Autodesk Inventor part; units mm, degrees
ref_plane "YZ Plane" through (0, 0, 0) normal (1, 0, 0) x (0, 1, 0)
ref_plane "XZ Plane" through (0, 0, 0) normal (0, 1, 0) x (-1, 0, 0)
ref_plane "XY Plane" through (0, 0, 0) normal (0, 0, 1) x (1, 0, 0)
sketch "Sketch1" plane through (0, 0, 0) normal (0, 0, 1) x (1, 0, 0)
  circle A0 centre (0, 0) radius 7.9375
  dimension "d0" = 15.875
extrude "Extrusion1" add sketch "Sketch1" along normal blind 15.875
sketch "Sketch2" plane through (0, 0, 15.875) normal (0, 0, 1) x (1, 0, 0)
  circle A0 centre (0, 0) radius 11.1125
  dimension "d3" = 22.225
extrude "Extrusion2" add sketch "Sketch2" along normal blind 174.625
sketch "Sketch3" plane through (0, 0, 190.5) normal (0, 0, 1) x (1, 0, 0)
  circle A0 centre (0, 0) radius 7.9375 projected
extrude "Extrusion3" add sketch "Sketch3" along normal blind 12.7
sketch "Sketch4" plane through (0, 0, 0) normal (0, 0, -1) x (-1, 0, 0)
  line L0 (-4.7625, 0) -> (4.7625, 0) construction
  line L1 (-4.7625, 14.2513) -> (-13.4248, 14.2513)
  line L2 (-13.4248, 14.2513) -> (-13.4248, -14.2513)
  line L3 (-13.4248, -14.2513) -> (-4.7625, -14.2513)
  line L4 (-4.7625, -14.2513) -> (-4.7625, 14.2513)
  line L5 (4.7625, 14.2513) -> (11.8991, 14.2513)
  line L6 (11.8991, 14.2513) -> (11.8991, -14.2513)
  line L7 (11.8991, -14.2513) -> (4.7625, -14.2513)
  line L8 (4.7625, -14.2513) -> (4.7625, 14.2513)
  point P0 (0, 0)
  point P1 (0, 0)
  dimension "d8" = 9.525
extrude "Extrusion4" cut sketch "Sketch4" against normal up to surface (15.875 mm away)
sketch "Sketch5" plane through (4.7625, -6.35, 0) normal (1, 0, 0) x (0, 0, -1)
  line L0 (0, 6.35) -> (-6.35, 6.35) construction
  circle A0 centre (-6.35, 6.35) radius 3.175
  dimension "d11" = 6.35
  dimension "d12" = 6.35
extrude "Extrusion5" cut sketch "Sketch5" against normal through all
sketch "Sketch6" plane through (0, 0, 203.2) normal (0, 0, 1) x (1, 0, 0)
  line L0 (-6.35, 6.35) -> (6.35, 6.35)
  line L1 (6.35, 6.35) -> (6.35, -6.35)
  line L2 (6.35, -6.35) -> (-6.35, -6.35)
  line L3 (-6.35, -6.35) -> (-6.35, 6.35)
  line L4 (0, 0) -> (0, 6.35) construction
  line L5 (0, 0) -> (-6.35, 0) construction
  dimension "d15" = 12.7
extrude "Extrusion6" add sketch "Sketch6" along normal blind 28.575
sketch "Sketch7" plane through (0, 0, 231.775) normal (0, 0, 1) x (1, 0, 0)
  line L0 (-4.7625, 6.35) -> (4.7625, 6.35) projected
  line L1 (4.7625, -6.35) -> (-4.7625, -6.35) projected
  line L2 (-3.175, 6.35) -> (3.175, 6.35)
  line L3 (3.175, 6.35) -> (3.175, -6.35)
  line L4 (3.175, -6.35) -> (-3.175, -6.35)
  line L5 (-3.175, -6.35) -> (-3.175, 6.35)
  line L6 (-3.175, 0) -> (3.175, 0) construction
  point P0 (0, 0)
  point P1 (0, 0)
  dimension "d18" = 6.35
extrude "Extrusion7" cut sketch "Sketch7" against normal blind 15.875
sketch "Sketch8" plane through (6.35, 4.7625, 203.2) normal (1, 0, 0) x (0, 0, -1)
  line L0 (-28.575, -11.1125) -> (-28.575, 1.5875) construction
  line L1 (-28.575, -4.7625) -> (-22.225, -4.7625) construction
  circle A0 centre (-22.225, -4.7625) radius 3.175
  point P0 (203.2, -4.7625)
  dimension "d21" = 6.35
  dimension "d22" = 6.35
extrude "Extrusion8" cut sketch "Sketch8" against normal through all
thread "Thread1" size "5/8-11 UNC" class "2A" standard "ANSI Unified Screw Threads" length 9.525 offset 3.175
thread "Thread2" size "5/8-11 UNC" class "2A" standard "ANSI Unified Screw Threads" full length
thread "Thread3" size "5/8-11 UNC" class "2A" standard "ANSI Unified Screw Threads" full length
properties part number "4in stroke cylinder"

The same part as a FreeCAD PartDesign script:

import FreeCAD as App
import Part
import Sketcher
from FreeCAD import Vector
Q = App.Units.Quantity

doc = App.newDocument("Part")
body = doc.addObject("PartDesign::Body", "Body")

# Sketch on XY plane
sketch1 = body.newObject("Sketcher::SketchObject", "Sketch")
sketch1.AttachmentSupport = (doc.getObject("XY_Plane"), [""])
sketch1.MapMode = "FlatFace"
sketch1.addGeometry(Part.Circle(Vector(0, 0, 0), Vector(0, 0, 1), 8), False)
sketch1.addConstraint([
    Sketcher.Constraint("Coincident", 0, 3, -1, 1),
    Sketcher.Constraint("Diameter", 0, Q("0.625 in")),
])
pad1 = body.newObject("PartDesign::Pad", "Pad")
pad1.Profile = sketch1
pad1.Length = Q("0.625 in")

# Sketch on XY plane
sketch2 = body.newObject("Sketcher::SketchObject", "Sketch001")
sketch2.AttachmentSupport = (doc.getObject("XY_Plane"), [""])
sketch2.MapMode = "FlatFace"
sketch2.AttachmentOffset = App.Placement(Vector(0, 0, 0.625 * 25.4), App.Rotation())
sketch2.addGeometry(Part.Circle(Vector(0, 0, 0), Vector(0, 0, 1), 11), False)
sketch2.addConstraint([
    Sketcher.Constraint("Coincident", 0, 3, -1, 1),
    Sketcher.Constraint("Diameter", 0, Q("0.875 in")),
])
pad2 = body.newObject("PartDesign::Pad", "Pad001")
pad2.Profile = sketch2
pad2.Length = Q("6.875 in")

# Sketch on XY plane
sketch3 = body.newObject("Sketcher::SketchObject", "Sketch002")
sketch3.AttachmentSupport = (doc.getObject("XY_Plane"), [""])
sketch3.MapMode = "FlatFace"
sketch3.AttachmentOffset = App.Placement(Vector(0, 0, 7.5 * 25.4), App.Rotation())
sketch3.addGeometry(Part.Circle(Vector(0, 0, 0), Vector(0, 0, 1), 8), False)
sketch3.addConstraint([
    Sketcher.Constraint("Coincident", 0, 3, -1, 1),
    Sketcher.Constraint("Diameter", 0, Q("0.625 in")),
])
pad3 = body.newObject("PartDesign::Pad", "Pad002")
pad3.Profile = sketch3
pad3.Length = Q("0.5 in")

# Sketch on XY plane
sketch4 = body.newObject("Sketcher::SketchObject", "Sketch003")
sketch4.AttachmentSupport = (doc.getObject("XY_Plane"), [""])
sketch4.MapMode = "FlatFace"
sketch4.addGeometry([
    Part.LineSegment(Vector(5, -14, 0), Vector(5, 14, 0)),  # 0
    Part.LineSegment(Vector(5, 14, 0), Vector(13, 14, 0)),  # 1
    Part.LineSegment(Vector(13, 14, 0), Vector(13, -14, 0)),  # 2
    Part.LineSegment(Vector(13, -14, 0), Vector(5, -14, 0)),  # 3
    Part.LineSegment(Vector(-12, 14, 0), Vector(-5, 14, 0)),  # 4
    Part.LineSegment(Vector(-5, 14, 0), Vector(-5, -14, 0)),  # 5
    Part.LineSegment(Vector(-5, -14, 0), Vector(-12, -14, 0)),  # 6
    Part.LineSegment(Vector(-12, -14, 0), Vector(-12, 14, 0)),  # 7
], False)
sketch4.addConstraint([
    Sketcher.Constraint("Coincident", 0, 2, 1, 1),
    Sketcher.Constraint("Coincident", 1, 2, 2, 1),
    Sketcher.Constraint("Coincident", 2, 2, 3, 1),
    Sketcher.Constraint("Coincident", 3, 2, 0, 1),
    Sketcher.Constraint("Coincident", 4, 2, 5, 1),
    Sketcher.Constraint("Coincident", 5, 2, 6, 1),
    Sketcher.Constraint("Coincident", 6, 2, 7, 1),
    Sketcher.Constraint("Coincident", 7, 2, 4, 1),
    Sketcher.Constraint("Vertical", 0),
    Sketcher.Constraint("Horizontal", 1),
    Sketcher.Constraint("Vertical", 2),
    Sketcher.Constraint("Horizontal", 3),
    Sketcher.Constraint("Horizontal", 4),
    Sketcher.Constraint("Vertical", 5),
    Sketcher.Constraint("Horizontal", 6),
    Sketcher.Constraint("Vertical", 7),
    Sketcher.Constraint("Symmetric", 3, 2, 4, 2, -1, 1),
    Sketcher.Constraint("Horizontal", 1, 2, 4, 2),
    Sketcher.Constraint("Horizontal", 3, 2, 5, 2),
    Sketcher.Constraint("DistanceX", 4, 2, 0, 2, Q("0.375 in")),
    Sketcher.Constraint("DistanceX", 6, 2, 2, 2, Q("0.997 in")),
    Sketcher.Constraint("DistanceX", 1, 1, 1, 2, Q("8.6623 mm")),
    Sketcher.Constraint("DistanceY", 0, 1, 0, 2, Q("28.5026 mm")),
])
pocket1 = body.newObject("PartDesign::Pocket", "Pocket")
pocket1.Profile = sketch4
pocket1.Length = Q("0.625 in")
pocket1.Reversed = True

# Sketch on YZ plane
sketch5 = body.newObject("Sketcher::SketchObject", "Sketch004")
sketch5.AttachmentSupport = (doc.getObject("YZ_Plane"), [""])
sketch5.MapMode = "FlatFace"
sketch5.AttachmentOffset = App.Placement(Vector(0, 0, 0.1875 * 25.4), App.Rotation())
sketch5.addGeometry(Part.Circle(Vector(0, 6.3, 0), Vector(0, 0, 1), 3.2), False)
sketch5.addConstraint([
    Sketcher.Constraint("PointOnObject", 0, 3, -2),
    Sketcher.Constraint("Diameter", 0, Q("0.25 in")),
    Sketcher.Constraint("DistanceY", -1, 1, 0, 3, Q("0.25 in")),
])
pocket2 = body.newObject("PartDesign::Pocket", "Pocket001")
pocket2.Profile = sketch5
pocket2.Type = "ThroughAll"

# Sketch on XY plane
sketch6 = body.newObject("Sketcher::SketchObject", "Sketch005")
sketch6.AttachmentSupport = (doc.getObject("XY_Plane"), [""])
sketch6.MapMode = "FlatFace"
sketch6.AttachmentOffset = App.Placement(Vector(0, 0, 8 * 25.4), App.Rotation())
sketch6.addGeometry([
    Part.LineSegment(Vector(6, 6, 0), Vector(-6, 6, 0)),
    Part.LineSegment(Vector(-6, 6, 0), Vector(-6, -6, 0)),
    Part.LineSegment(Vector(-6, -6, 0), Vector(6, -6, 0)),
    Part.LineSegment(Vector(6, -6, 0), Vector(6, 6, 0)),
], False)
sketch6.addConstraint([
    Sketcher.Constraint("Coincident", 0, 2, 1, 1),
    Sketcher.Constraint("Coincident", 1, 2, 2, 1),
    Sketcher.Constraint("Coincident", 2, 2, 3, 1),
    Sketcher.Constraint("Coincident", 3, 2, 0, 1),
    Sketcher.Constraint("Horizontal", 0),
    Sketcher.Constraint("Vertical", 1),
    Sketcher.Constraint("Horizontal", 2),
    Sketcher.Constraint("Vertical", 3),
    Sketcher.Constraint("Symmetric", 0, 2, 2, 2, -1, 1),
    Sketcher.Constraint("Equal", 2, 1),
    Sketcher.Constraint("DistanceX", 0, 2, 0, 1, Q("0.5 in")),
])
pad4 = body.newObject("PartDesign::Pad", "Pad003")
pad4.Profile = sketch6
pad4.Length = Q("1.125 in")

# Sketch on XY plane
sketch7 = body.newObject("Sketcher::SketchObject", "Sketch006")
sketch7.AttachmentSupport = (doc.getObject("XY_Plane"), [""])
sketch7.MapMode = "FlatFace"
sketch7.AttachmentOffset = App.Placement(Vector(0, 0, 9.125 * 25.4), App.Rotation())
sketch7.addGeometry([
    Part.LineSegment(Vector(3, 6, 0), Vector(-3, 6, 0)),
    Part.LineSegment(Vector(-3, 6, 0), Vector(-3, -6, 0)),
    Part.LineSegment(Vector(-3, -6, 0), Vector(3, -6, 0)),
    Part.LineSegment(Vector(3, -6, 0), Vector(3, 6, 0)),
], False)
sketch7.addConstraint([
    Sketcher.Constraint("Coincident", 0, 2, 1, 1),
    Sketcher.Constraint("Coincident", 1, 2, 2, 1),
    Sketcher.Constraint("Coincident", 2, 2, 3, 1),
    Sketcher.Constraint("Coincident", 3, 2, 0, 1),
    Sketcher.Constraint("Horizontal", 0),
    Sketcher.Constraint("Vertical", 1),
    Sketcher.Constraint("Horizontal", 2),
    Sketcher.Constraint("Vertical", 3),
    Sketcher.Constraint("Symmetric", 0, 2, 2, 2, -1, 1),
    Sketcher.Constraint("DistanceX", 0, 2, 0, 1, Q("0.25 in")),
    Sketcher.Constraint("DistanceY", -1, 1, 0, 2, Q("0.25 in")),
])
pocket3 = body.newObject("PartDesign::Pocket", "Pocket002")
pocket3.Profile = sketch7
pocket3.Length = Q("0.625 in")

# Sketch on YZ plane
sketch8 = body.newObject("Sketcher::SketchObject", "Sketch007")
sketch8.AttachmentSupport = (doc.getObject("YZ_Plane"), [""])
sketch8.MapMode = "FlatFace"
sketch8.AttachmentOffset = App.Placement(Vector(0, 0, 0.25 * 25.4), App.Rotation())
sketch8.addGeometry(Part.Circle(Vector(0, 225.4, 0), Vector(0, 0, 1), 3.2), False)
sketch8.addConstraint([
    Sketcher.Constraint("PointOnObject", 0, 3, -2),
    Sketcher.Constraint("Diameter", 0, Q("0.25 in")),
    Sketcher.Constraint("DistanceY", -1, 1, 0, 3, Q("8.875 in")),
])
pocket4 = body.newObject("PartDesign::Pocket", "Pocket003")
pocket4.Profile = sketch8
pocket4.Type = "ThroughAll"

doc.recompute()
